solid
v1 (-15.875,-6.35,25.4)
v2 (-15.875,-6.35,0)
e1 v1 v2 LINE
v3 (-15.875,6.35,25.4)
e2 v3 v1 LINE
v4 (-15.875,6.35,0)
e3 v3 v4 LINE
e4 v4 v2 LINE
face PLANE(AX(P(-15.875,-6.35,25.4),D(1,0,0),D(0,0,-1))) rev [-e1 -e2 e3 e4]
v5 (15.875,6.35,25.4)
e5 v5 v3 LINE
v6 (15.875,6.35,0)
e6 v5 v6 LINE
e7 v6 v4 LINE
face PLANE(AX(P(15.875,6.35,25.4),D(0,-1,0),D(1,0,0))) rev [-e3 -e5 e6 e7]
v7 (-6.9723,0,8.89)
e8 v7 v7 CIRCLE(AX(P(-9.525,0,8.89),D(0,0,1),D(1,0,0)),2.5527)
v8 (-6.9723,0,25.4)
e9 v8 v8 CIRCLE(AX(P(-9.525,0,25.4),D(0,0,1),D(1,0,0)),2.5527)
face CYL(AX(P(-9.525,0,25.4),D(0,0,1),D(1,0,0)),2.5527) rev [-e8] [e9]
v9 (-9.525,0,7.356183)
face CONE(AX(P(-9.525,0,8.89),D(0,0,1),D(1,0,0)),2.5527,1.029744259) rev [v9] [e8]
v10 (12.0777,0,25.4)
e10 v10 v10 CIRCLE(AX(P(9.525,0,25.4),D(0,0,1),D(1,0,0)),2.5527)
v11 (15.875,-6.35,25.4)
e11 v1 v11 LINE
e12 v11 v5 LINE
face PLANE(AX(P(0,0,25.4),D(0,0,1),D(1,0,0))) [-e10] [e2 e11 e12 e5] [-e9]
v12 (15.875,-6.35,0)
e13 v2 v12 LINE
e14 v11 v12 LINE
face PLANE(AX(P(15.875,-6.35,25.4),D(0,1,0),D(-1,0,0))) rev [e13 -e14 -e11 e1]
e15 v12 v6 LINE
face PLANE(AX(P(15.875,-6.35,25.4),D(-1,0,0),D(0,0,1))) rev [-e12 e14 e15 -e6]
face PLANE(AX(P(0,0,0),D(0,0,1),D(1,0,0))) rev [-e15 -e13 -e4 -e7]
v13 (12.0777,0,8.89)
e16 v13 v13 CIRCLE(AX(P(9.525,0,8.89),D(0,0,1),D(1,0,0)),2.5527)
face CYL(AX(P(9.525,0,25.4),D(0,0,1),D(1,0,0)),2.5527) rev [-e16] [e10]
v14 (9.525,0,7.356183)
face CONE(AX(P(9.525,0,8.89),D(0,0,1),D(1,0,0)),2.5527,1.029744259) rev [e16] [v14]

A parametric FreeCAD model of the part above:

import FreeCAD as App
import Part
import Sketcher
from FreeCAD import Vector
Q = App.Units.Quantity


def add_polygon(sketch, points):
    """Adds a closed chain of lines whose ends are joined by coincident constraints."""
    first, n = sketch.GeometryCount, len(points)
    for a, b in zip(points, points[1:] + points[:1]):
        sketch.addGeometry(Part.LineSegment(App.Vector(*a, 0), App.Vector(*b, 0)), False)
    for i in range(n):
        sketch.addConstraint(Sketcher.Constraint("Coincident", first + i, 2, first + (i + 1) % n, 1))

doc = App.newDocument("Part")
body = doc.addObject("PartDesign::Body", "Body")

# Sketch on XY plane
sketch1 = body.newObject("Sketcher::SketchObject", "Sketch")
sketch1.AttachmentSupport = (doc.getObject("XY_Plane"), [""])
sketch1.MapMode = "FlatFace"
add_polygon(sketch1, [(-16, 6), (-16, -6), (16, -6), (16, 6)])  # lines 0-3
sketch1.addConstraint([
    Sketcher.Constraint("Vertical", 0),
    Sketcher.Constraint("Horizontal", 1),
    Sketcher.Constraint("Vertical", 2),
    Sketcher.Constraint("Horizontal", 3),
    Sketcher.Constraint("Symmetric", 0, 2, 2, 2, -1, 1),
    Sketcher.Constraint("DistanceY", 0, 2, 0, 1, Q("0.5 in")),
    Sketcher.Constraint("DistanceX", 1, 1, 1, 2, Q("1.25 in")),
])
pad1 = body.newObject("PartDesign::Pad", "Pad")
pad1.Profile = sketch1
pad1.Length = Q("1 in")

# Sketch on XY plane
sketch2 = body.newObject("Sketcher::SketchObject", "Sketch001")
sketch2.AttachmentSupport = (doc.getObject("XY_Plane"), [""])
sketch2.MapMode = "FlatFace"
sketch2.AttachmentOffset = App.Placement(Vector(0, 0, 1 * 25.4), App.Rotation())
sketch2.addGeometry([
    Part.Circle(Vector(-9.5, 0, 0), Vector(0, 0, 1), 2.6),
    Part.Circle(Vector(9.5, 0, 0), Vector(0, 0, 1), 2.6),
], False)
sketch2.addConstraint([
    Sketcher.Constraint("Equal", 0, 1),
    Sketcher.Constraint("Symmetric", 0, 3, 1, 3, -1, 1),
    Sketcher.Constraint("PointOnObject", 0, 3, -1),
    Sketcher.Constraint("Diameter", 0, Q("0.201 in")),
    Sketcher.Constraint("DistanceX", 0, 3, 1, 3, Q("0.75 in")),
])
doc.recompute()
hole = body.newObject("PartDesign::Hole", "Hole")
hole.Profile = sketch2
hole.ThreadType = "None"
hole.Diameter = Q("0.201 in")
hole.DepthType = "Dimension"
hole.Depth = Q("0.65 in")
hole.DrillPoint = "Angled"
hole.DrillPointAngle = 118

doc.recompute()
